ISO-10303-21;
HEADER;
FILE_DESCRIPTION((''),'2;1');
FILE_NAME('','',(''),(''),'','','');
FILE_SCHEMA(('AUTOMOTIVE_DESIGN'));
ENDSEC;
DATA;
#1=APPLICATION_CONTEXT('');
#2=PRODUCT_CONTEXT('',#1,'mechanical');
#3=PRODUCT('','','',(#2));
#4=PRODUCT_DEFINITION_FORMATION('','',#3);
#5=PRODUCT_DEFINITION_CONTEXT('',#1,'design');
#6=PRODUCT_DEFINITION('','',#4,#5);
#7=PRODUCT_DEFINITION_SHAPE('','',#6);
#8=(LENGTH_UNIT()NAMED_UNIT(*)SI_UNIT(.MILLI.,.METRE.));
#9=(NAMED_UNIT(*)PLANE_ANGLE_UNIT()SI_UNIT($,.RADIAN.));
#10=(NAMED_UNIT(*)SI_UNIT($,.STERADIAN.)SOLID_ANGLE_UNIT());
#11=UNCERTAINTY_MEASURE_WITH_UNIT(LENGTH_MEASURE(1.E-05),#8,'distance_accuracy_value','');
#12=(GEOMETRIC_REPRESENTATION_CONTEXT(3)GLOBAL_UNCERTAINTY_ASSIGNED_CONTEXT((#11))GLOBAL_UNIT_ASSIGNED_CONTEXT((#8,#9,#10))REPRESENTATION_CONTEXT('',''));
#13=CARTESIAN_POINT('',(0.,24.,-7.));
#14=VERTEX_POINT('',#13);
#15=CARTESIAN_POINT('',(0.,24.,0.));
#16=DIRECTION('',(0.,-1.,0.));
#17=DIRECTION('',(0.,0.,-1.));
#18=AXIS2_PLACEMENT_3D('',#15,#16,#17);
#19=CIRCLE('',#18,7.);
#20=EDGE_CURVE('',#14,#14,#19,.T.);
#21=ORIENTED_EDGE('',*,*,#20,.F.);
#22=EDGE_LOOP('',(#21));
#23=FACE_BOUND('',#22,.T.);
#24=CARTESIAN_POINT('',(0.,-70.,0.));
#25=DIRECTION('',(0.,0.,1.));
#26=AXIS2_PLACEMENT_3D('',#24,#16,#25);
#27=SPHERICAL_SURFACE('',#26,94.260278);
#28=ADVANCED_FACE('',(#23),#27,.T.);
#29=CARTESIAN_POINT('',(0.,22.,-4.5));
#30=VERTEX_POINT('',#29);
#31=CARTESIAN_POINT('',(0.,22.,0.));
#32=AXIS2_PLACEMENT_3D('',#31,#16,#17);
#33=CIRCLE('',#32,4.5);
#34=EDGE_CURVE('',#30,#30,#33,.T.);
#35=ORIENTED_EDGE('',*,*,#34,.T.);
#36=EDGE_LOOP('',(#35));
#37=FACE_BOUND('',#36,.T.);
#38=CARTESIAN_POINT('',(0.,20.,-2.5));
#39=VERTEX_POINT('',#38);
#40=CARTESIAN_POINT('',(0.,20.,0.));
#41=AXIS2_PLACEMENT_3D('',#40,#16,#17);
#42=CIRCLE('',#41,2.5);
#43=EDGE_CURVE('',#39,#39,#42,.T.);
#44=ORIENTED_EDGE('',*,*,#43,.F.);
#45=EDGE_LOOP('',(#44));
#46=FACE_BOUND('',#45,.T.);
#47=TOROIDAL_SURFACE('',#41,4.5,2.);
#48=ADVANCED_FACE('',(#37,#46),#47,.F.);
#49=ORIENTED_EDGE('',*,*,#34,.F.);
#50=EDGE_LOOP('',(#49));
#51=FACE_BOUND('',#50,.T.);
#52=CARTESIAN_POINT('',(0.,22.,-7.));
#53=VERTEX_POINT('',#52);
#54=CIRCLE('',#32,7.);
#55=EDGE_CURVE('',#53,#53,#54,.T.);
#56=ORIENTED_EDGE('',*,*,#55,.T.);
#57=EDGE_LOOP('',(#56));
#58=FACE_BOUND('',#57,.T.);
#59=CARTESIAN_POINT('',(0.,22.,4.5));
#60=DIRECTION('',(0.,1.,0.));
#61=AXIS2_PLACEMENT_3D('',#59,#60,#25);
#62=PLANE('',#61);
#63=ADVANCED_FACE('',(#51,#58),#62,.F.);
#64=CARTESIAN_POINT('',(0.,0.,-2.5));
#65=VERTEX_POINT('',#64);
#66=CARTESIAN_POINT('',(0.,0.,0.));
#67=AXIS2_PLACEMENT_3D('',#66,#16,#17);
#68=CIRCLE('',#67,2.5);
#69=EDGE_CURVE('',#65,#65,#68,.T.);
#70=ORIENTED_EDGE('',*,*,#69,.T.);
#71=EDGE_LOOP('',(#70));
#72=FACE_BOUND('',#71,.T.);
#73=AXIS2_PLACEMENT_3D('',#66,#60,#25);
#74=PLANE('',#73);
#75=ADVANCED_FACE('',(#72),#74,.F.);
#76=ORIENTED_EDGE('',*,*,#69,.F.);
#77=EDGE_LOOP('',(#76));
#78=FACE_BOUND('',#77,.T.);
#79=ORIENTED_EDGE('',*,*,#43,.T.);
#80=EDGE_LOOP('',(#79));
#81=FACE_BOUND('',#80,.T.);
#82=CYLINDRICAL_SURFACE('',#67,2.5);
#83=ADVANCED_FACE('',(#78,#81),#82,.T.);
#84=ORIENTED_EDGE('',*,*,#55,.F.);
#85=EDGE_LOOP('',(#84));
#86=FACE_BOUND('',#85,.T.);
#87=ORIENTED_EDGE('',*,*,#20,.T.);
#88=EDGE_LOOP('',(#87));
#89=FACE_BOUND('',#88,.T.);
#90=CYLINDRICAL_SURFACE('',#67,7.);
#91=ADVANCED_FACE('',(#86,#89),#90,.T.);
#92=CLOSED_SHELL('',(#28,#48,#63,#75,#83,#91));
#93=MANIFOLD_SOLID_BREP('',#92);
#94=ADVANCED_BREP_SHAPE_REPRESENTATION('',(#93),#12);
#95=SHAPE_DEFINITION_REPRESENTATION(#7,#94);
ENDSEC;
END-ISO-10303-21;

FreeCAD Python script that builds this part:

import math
import FreeCAD as App
import Part
import Sketcher

V = App.Vector
Q = App.Units.Quantity

doc = App.newDocument("Part")
body = doc.addObject("PartDesign::Body", "Body")

# Sketch on YZ plane
sketch1 = body.newObject("Sketcher::SketchObject", "Sketch")
sketch1.AttachmentSupport = (doc.getObject("YZ_Plane"), [""])
sketch1.MapMode = "FlatFace"
sketch1.addGeometry(Part.LineSegment(V(0, 2.5, 0), V(0, 0, 0)), False)
sketch1.addGeometry(Part.LineSegment(V(0, 0, 0), V(24.3, 0, 0)), False)
sketch1.addGeometry(Part.ArcOfCircle(Part.Circle(V(-70, 0, 0), V(0, 0, 1), 94.3), math.radians(0), math.radians(4.26)), False)
sketch1.addGeometry(Part.LineSegment(V(24, 7, 0), V(22, 7, 0)), False)
sketch1.addGeometry(Part.LineSegment(V(22, 7, 0), V(22, 4.5, 0)), False)
sketch1.addGeometry(Part.ArcOfCircle(Part.Circle(V(20, 4.5, 0), V(0, 0, 1), 2), math.radians(-90), math.radians(0)), False)
sketch1.addGeometry(Part.LineSegment(V(20, 2.5, 0), V(0, 2.5, 0)), False)
sketch1.addConstraint(Sketcher.Constraint("Coincident", 0, 2, 1, 1))
sketch1.addConstraint(Sketcher.Constraint("Coincident", 1, 2, 2, 1))
sketch1.addConstraint(Sketcher.Constraint("Coincident", 2, 2, 3, 1))
sketch1.addConstraint(Sketcher.Constraint("Coincident", 3, 2, 4, 1))
sketch1.addConstraint(Sketcher.Constraint("Tangent", 4, 2, 5, 2))
sketch1.addConstraint(Sketcher.Constraint("Tangent", 5, 1, 6, 1))
sketch1.addConstraint(Sketcher.Constraint("Coincident", 6, 2, 0, 1))
sketch1.addConstraint(Sketcher.Constraint("Vertical", 0))
sketch1.addConstraint(Sketcher.Constraint("Horizontal", 1))
sketch1.addConstraint(Sketcher.Constraint("Horizontal", 3))
sketch1.addConstraint(Sketcher.Constraint("Vertical", 4))
sketch1.addConstraint(Sketcher.Constraint("Horizontal", 6))
sketch1.addConstraint(Sketcher.Constraint("Coincident", 0, 2, -1, 1))
sketch1.addConstraint(Sketcher.Constraint("PointOnObject", 2, 3, -1))
sketch1.addConstraint(Sketcher.Constraint("Equal", 0, 4))
sketch1.addConstraint(Sketcher.Constraint("Radius", 5, Q("2 mm")))
sketch1.addConstraint(Sketcher.Constraint("DistanceX", 3, 2, 3, 1, Q("2 mm")))
sketch1.addConstraint(Sketcher.Constraint("DistanceX", 6, 2, 6, 1, Q("20 mm")))
sketch1.addConstraint(Sketcher.Constraint("DistanceY", 0, 2, 0, 1, Q("2.5 mm")))
sketch1.addConstraint(Sketcher.Constraint("DistanceX", 2, 3, -1, 1, Q("70 mm")))
revolution = body.newObject("PartDesign::Revolution", "Revolution")
revolution.Profile = sketch1
revolution.ReferenceAxis = (sketch1, ["H_Axis"])
revolution.Angle = 360

doc.recompute()
